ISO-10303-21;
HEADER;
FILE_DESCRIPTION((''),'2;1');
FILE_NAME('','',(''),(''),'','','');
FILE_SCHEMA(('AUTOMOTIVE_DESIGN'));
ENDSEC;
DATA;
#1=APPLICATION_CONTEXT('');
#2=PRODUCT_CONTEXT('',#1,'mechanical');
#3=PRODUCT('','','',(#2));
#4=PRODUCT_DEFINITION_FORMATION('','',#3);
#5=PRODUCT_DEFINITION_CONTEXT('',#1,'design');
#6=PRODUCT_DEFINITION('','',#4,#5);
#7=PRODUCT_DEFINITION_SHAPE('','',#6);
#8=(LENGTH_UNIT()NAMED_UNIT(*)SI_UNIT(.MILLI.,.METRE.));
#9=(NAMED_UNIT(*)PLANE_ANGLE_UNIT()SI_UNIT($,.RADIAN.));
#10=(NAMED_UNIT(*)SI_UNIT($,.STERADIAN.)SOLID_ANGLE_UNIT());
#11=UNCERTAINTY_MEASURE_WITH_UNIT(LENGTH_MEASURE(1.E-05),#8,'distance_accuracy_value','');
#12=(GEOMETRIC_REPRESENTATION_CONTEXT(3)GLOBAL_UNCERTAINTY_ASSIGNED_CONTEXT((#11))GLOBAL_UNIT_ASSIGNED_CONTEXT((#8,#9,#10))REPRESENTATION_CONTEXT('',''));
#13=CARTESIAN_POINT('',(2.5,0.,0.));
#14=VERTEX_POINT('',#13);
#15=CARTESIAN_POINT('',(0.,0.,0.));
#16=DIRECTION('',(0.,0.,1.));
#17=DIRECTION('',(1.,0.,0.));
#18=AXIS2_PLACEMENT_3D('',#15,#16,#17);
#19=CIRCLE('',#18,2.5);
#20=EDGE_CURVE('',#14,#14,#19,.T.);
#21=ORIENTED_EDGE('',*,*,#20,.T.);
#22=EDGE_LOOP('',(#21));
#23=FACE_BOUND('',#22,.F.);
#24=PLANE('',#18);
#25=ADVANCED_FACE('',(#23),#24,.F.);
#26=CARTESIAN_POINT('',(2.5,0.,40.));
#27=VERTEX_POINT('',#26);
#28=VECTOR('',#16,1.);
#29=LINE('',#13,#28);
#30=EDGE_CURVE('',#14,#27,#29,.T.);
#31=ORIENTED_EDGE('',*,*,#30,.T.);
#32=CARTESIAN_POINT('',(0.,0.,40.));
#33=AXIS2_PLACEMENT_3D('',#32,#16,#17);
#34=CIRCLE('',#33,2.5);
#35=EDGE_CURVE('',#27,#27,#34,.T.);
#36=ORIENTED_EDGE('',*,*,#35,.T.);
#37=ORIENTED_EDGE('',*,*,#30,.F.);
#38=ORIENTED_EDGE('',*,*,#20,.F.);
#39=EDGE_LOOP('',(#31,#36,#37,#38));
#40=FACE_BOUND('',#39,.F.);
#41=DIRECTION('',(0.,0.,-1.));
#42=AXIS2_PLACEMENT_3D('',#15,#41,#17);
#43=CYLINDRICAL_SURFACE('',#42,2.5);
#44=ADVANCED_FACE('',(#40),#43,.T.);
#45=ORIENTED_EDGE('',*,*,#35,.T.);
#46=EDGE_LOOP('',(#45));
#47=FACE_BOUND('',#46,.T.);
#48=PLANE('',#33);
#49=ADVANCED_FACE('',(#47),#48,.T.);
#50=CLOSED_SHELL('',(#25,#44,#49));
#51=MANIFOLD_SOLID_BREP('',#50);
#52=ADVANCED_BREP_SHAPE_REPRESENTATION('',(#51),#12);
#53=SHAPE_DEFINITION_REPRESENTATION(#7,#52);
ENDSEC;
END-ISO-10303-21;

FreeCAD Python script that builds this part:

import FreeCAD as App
import Part
import Sketcher
Q = App.Units.Quantity

doc = App.newDocument("Part")
body = doc.addObject("PartDesign::Body", "Body")

# Sketch on XY plane
sketch1 = body.newObject("Sketcher::SketchObject", "Sketch")
sketch1.AttachmentSupport = (doc.getObject("XY_Plane"), [""])
sketch1.MapMode = "FlatFace"
sketch1.addGeometry(Part.Circle(App.Vector(0, 0, 0), App.Vector(0, 0, 1), 2.5), False)
sketch1.addConstraint([
    Sketcher.Constraint("Coincident", 0, 3, -1, 1),
    Sketcher.Constraint("Diameter", 0, Q("5 mm")),
])
pad1 = body.newObject("PartDesign::Pad", "Pad")
pad1.Profile = sketch1
pad1.Length = 40

doc.recompute()
